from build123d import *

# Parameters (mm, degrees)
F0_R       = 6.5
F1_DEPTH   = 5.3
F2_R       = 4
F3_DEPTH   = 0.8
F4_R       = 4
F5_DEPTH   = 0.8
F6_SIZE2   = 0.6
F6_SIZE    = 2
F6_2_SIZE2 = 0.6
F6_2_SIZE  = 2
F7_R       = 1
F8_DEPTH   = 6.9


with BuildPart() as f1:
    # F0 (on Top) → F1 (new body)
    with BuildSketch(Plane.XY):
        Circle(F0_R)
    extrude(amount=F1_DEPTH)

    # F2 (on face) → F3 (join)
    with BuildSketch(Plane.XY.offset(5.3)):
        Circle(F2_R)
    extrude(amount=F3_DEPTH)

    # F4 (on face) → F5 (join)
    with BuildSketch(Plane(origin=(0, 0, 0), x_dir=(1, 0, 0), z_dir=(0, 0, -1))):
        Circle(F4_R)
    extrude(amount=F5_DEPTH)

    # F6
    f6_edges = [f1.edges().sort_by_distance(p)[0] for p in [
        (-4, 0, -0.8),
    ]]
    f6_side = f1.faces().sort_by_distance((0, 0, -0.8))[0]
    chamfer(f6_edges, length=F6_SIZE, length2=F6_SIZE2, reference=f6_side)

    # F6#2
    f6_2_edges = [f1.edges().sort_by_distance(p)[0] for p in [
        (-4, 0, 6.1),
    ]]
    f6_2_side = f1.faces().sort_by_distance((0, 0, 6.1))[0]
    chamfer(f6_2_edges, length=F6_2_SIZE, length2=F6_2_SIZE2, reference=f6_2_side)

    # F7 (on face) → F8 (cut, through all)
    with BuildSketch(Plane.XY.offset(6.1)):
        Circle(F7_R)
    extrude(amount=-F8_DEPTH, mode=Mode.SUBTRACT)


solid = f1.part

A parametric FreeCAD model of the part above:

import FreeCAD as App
import Part
import Sketcher
from FreeCAD import Vector
Q = App.Units.Quantity


def edges_at(feature, points):
    """Names of the edges that pass closest to the given points."""
    edges = feature.Shape.Edges
    near = lambda p: min(range(len(edges)), key=lambda i: edges[i].distToShape(Part.Vertex(*p))[0])
    return sorted({f"Edge{near(p) + 1}" for p in points})

doc = App.newDocument("Part")
body = doc.addObject("PartDesign::Body", "Body")

# Sketch on XY plane
sketch1 = body.newObject("Sketcher::SketchObject", "Sketch")
sketch1.AttachmentSupport = (doc.getObject("XY_Plane"), [""])
sketch1.MapMode = "FlatFace"
sketch1.addGeometry(Part.Circle(Vector(0, 0, 0), Vector(0, 0, 1), 6), False)
sketch1.addConstraint([
    Sketcher.Constraint("Coincident", 0, 3, -1, 1),
    Sketcher.Constraint("Diameter", 0, Q("13 mm")),
])
pad1 = body.newObject("PartDesign::Pad", "Pad")
pad1.Profile = sketch1
pad1.Length = 5.3

# Sketch on XY plane
sketch2 = body.newObject("Sketcher::SketchObject", "Sketch001")
sketch2.AttachmentSupport = (doc.getObject("XY_Plane"), [""])
sketch2.MapMode = "FlatFace"
sketch2.AttachmentOffset = App.Placement(Vector(0, 0, 5.3), App.Rotation())
sketch2.addGeometry(Part.Circle(Vector(0, 0, 0), Vector(0, 0, 1), 4), False)
sketch2.addConstraint([
    Sketcher.Constraint("Coincident", 0, 3, -1, 1),
    Sketcher.Constraint("Diameter", 0, Q("8 mm")),
])
pad2 = body.newObject("PartDesign::Pad", "Pad001")
pad2.Profile = sketch2
pad2.Length = 0.8

# Sketch on XY plane
sketch3 = body.newObject("Sketcher::SketchObject", "Sketch002")
sketch3.AttachmentSupport = (doc.getObject("XY_Plane"), [""])
sketch3.MapMode = "FlatFace"
sketch3.addGeometry(Part.Circle(Vector(0, 0, 0), Vector(0, 0, 1), 4), False)
sketch3.addConstraint([
    Sketcher.Constraint("Coincident", 0, 3, -1, 1),
    Sketcher.Constraint("Diameter", 0, Q("8 mm")),
])
pad3 = body.newObject("PartDesign::Pad", "Pad002")
pad3.Profile = sketch3
pad3.Length = 0.8
pad3.Reversed = True
doc.recompute()

chamfer = body.newObject("PartDesign::Chamfer", "Chamfer")
chamfer.Base = (pad3, edges_at(pad3, [(-4, 0, -0.8)]))
chamfer.ChamferType = "Two distances"
chamfer.Size = 2
chamfer.Size2 = 0.6
chamfer.FlipDirection = True
doc.recompute()

chamfer2 = body.newObject("PartDesign::Chamfer", "Chamfer001")
chamfer2.Base = (chamfer, edges_at(chamfer, [(-4, 0, 6.1)]))
chamfer2.ChamferType = "Two distances"
chamfer2.Size = 2
chamfer2.Size2 = 0.6
chamfer2.FlipDirection = True

# Sketch on XY plane
sketch4 = body.newObject("Sketcher::SketchObject", "Sketch003")
sketch4.AttachmentSupport = (doc.getObject("XY_Plane"), [""])
sketch4.MapMode = "FlatFace"
sketch4.AttachmentOffset = App.Placement(Vector(0, 0, 6.1), App.Rotation())
sketch4.addGeometry(Part.Circle(Vector(0, 0, 0), Vector(0, 0, 1), 1), False)
sketch4.addConstraint([
    Sketcher.Constraint("Coincident", 0, 3, -1, 1),
    Sketcher.Constraint("Diameter", 0, Q("2 mm")),
])
pocket1 = body.newObject("PartDesign::Pocket", "Pocket")
pocket1.Profile = sketch4
pocket1.Type = "ThroughAll"

doc.recompute()
